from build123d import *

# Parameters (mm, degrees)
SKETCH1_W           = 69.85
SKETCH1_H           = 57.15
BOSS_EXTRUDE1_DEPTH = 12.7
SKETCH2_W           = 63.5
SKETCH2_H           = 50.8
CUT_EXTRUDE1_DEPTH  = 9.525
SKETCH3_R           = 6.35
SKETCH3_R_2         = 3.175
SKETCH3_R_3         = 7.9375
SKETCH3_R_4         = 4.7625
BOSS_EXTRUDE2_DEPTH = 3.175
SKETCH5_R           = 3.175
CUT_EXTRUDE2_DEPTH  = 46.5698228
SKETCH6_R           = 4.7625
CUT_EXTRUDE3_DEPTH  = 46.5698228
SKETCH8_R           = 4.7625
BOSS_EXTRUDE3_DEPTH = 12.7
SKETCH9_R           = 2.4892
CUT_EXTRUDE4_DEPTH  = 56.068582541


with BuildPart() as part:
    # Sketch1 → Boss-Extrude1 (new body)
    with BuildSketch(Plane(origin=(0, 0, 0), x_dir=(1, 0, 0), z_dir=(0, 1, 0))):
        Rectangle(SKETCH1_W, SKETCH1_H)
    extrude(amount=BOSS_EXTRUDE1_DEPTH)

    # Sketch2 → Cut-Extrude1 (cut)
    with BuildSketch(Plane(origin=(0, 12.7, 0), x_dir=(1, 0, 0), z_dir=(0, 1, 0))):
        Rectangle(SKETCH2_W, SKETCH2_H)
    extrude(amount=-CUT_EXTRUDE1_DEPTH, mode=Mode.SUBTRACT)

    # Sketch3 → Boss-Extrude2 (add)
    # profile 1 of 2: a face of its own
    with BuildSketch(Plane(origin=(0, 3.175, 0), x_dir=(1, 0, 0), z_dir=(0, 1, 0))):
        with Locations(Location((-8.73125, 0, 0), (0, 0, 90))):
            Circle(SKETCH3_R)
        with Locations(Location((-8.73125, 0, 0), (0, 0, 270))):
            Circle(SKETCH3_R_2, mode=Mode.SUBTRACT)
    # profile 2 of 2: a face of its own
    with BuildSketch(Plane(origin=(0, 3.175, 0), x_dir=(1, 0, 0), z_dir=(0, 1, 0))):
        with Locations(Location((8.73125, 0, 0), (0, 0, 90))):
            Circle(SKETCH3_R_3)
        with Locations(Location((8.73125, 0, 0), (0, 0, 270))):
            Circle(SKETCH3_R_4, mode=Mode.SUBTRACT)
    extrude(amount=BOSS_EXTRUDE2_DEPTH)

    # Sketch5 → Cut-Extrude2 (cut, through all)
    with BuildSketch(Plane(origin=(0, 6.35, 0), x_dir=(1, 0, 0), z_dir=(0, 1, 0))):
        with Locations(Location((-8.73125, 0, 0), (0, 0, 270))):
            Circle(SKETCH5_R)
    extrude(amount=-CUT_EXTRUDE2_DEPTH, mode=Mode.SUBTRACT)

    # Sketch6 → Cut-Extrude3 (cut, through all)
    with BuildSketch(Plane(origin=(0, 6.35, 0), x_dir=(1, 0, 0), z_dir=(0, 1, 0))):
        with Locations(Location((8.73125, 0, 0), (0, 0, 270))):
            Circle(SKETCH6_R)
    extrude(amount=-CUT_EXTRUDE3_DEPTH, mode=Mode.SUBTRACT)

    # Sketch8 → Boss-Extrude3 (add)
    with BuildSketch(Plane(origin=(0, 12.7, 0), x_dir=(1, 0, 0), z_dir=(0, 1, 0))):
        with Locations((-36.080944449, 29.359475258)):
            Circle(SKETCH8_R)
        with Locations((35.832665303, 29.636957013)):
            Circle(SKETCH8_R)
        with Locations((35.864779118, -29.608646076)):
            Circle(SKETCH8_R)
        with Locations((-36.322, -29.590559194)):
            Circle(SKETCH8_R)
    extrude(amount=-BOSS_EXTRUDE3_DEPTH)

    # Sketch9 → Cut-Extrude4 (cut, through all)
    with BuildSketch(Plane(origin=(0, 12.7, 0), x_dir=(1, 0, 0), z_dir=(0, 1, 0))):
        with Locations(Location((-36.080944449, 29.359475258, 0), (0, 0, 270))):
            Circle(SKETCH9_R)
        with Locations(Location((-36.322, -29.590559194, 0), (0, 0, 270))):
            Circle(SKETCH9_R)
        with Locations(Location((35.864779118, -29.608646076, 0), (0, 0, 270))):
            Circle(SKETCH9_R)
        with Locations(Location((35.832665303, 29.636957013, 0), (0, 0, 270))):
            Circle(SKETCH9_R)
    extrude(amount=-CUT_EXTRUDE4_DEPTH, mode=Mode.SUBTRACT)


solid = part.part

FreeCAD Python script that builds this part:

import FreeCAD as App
import Part
import Sketcher

V = App.Vector
Q = App.Units.Quantity


def add_polygon(sketch, points):
    """Adds a closed chain of lines whose ends are joined by coincident constraints."""
    first, n = sketch.GeometryCount, len(points)
    for a, b in zip(points, points[1:] + points[:1]):
        sketch.addGeometry(Part.LineSegment(App.Vector(*a, 0), App.Vector(*b, 0)), False)
    for i in range(n):
        sketch.addConstraint(Sketcher.Constraint("Coincident", first + i, 2, first + (i + 1) % n, 1))

doc = App.newDocument("Part")
params = doc.addObject("Spreadsheet::Sheet", "Params")
for row, (alias, value) in enumerate([
    ("sketch1_width", "2.75 in"),
    ("sketch1_height", "2.25 in"),
    ("pad1_length", "0.5 in"),
    ("sketch2_height", "2 in"),
    ("sketch2_width", "2.5 in"),
    ("pocket1_length", "0.375 in"),
    ("sketch3_diameter", "0.5 in"),
    ("sketch3_diameter2", "0.25 in"),
    ("sketch3_diameter3", "0.625 in"),
    ("sketch3_diameter4", "0.375 in"),
    ("pad2_length", "0.125 in"),
    ("sketch4_diameter", "0.25 in"),
    ("sketch5_diameter", "0.375 in"),
    ("sketch6_diameter", "0.375 in"),
    ("pad3_length", "0.5 in"),
    ("sketch7_diameter", "0.196 in"),
], start=1):
    params.set(f"A{row}", alias)
    params.set(f"B{row}", "=" + value)
    params.setAlias(f"B{row}", alias)

body = doc.addObject("PartDesign::Body", "Body")

sketch1 = doc.addObject("Sketcher::SketchObject", "Sketch")
body.addObject(sketch1)
sketch1.AttachmentSupport = (doc.XZ_Plane, [""])
sketch1.MapMode = "FlatFace"
add_polygon(sketch1, [(-35, -29), (-35, 29), (35, 29), (35, -29)])
sketch1.addConstraint([
    Sketcher.Constraint("Vertical", 0),
    Sketcher.Constraint("Horizontal", 1),
    Sketcher.Constraint("Vertical", 2),
    Sketcher.Constraint("Horizontal", 3),
    Sketcher.Constraint("Symmetric", 0, 2, 2, 2, -1, 1),
    Sketcher.Constraint("DistanceX", 1, 1, 1, 2, Q("2.75 in")),
    Sketcher.Constraint("DistanceY", 0, 1, 0, 2, Q("2.25 in")),
])
sketch1.setExpression("Constraints[9]", "Params.sketch1_width")
sketch1.setExpression("Constraints[10]", "Params.sketch1_height")
pad1 = doc.addObject("PartDesign::Pad", "Pad")
body.addObject(pad1)
pad1.Profile = sketch1
pad1.setExpression("Length", "Params.pad1_length")
pad1.Reversed = True

sketch2 = doc.addObject("Sketcher::SketchObject", "Sketch001")
body.addObject(sketch2)
sketch2.AttachmentSupport = (doc.XZ_Plane, [""])
sketch2.MapMode = "FlatFace"
sketch2.AttachmentOffset = App.Placement(V(0, 0, -0.5 * 25.4), App.Rotation())
add_polygon(sketch2, [(-32, -25), (-32, 25), (32, 25), (32, -25)])
sketch2.addConstraint([
    Sketcher.Constraint("Vertical", 0),
    Sketcher.Constraint("Horizontal", 1),
    Sketcher.Constraint("Vertical", 2),
    Sketcher.Constraint("Horizontal", 3),
    Sketcher.Constraint("Symmetric", 0, 2, 2, 2, -1, 1),
    Sketcher.Constraint("DistanceY", 0, 1, 0, 2, Q("2 in")),
    Sketcher.Constraint("DistanceX", 1, 1, 1, 2, Q("2.5 in")),
])
sketch2.setExpression("Constraints[9]", "Params.sketch2_height")
sketch2.setExpression("Constraints[10]", "Params.sketch2_width")
pocket1 = doc.addObject("PartDesign::Pocket", "Pocket")
body.addObject(pocket1)
pocket1.Profile = sketch2
pocket1.setExpression("Length", "Params.pocket1_length")
pocket1.Reversed = True

sketch3 = doc.addObject("Sketcher::SketchObject", "Sketch002")
body.addObject(sketch3)
sketch3.AttachmentSupport = (doc.XZ_Plane, [""])
sketch3.MapMode = "FlatFace"
sketch3.AttachmentOffset = App.Placement(V(0, 0, -0.125 * 25.4), App.Rotation())
sketch3.addGeometry([
    Part.Circle(V(-8.7, 0, 0), V(0, 0, 1), 6.3),
    Part.Circle(V(-8.7, 0, 0), V(0, 0, 1), 3.2),
    Part.Circle(V(8.7, 0, 0), V(0, 0, 1), 7.9),
    Part.Circle(V(8.7, 0, 0), V(0, 0, 1), 4.8),
], False)
sketch3.addConstraint([
    Sketcher.Constraint("Coincident", 1, 3, 0, 3),
    Sketcher.Constraint("Coincident", 3, 3, 2, 3),
    Sketcher.Constraint("Symmetric", 0, 3, 2, 3, -1, 1),
    Sketcher.Constraint("PointOnObject", 0, 3, -1),
    Sketcher.Constraint("Diameter", 0, Q("0.5 in")),
    Sketcher.Constraint("Diameter", 1, Q("0.25 in")),
    Sketcher.Constraint("Diameter", 2, Q("0.625 in")),
    Sketcher.Constraint("Diameter", 3, Q("0.375 in")),
    Sketcher.Constraint("DistanceX", 0, 3, -1, 1, Q("0.34375 in")),
])
sketch3.setExpression("Constraints[4]", "Params.sketch3_diameter")
sketch3.setExpression("Constraints[5]", "Params.sketch3_diameter2")
sketch3.setExpression("Constraints[6]", "Params.sketch3_diameter3")
sketch3.setExpression("Constraints[7]", "Params.sketch3_diameter4")
pad2 = doc.addObject("PartDesign::Pad", "Pad001")
body.addObject(pad2)
pad2.Profile = sketch3
pad2.setExpression("Length", "Params.pad2_length")
pad2.Reversed = True

sketch4 = doc.addObject("Sketcher::SketchObject", "Sketch003")
body.addObject(sketch4)
sketch4.AttachmentSupport = (doc.XZ_Plane, [""])
sketch4.MapMode = "FlatFace"
sketch4.AttachmentOffset = App.Placement(V(0, 0, -0.25 * 25.4), App.Rotation())
sketch4.addGeometry(Part.Circle(V(-8.7, 0, 0), V(0, 0, 1), 3.2), False)
sketch4.addConstraint([
    Sketcher.Constraint("PointOnObject", 0, 3, -1),
    Sketcher.Constraint("Diameter", 0, Q("0.25 in")),
    Sketcher.Constraint("DistanceX", 0, 3, -1, 1, Q("0.34375 in")),
])
sketch4.setExpression("Constraints[1]", "Params.sketch4_diameter")
pocket2 = doc.addObject("PartDesign::Pocket", "Pocket001")
body.addObject(pocket2)
pocket2.Profile = sketch4
pocket2.Type = "ThroughAll"
pocket2.Reversed = True

sketch5 = doc.addObject("Sketcher::SketchObject", "Sketch004")
body.addObject(sketch5)
sketch5.AttachmentSupport = (doc.XZ_Plane, [""])
sketch5.MapMode = "FlatFace"
sketch5.AttachmentOffset = App.Placement(V(0, 0, -0.25 * 25.4), App.Rotation())
sketch5.addGeometry(Part.Circle(V(8.7, 0, 0), V(0, 0, 1), 4.8), False)
sketch5.addConstraint([
    Sketcher.Constraint("PointOnObject", 0, 3, -1),
    Sketcher.Constraint("Diameter", 0, Q("0.375 in")),
    Sketcher.Constraint("DistanceX", -1, 1, 0, 3, Q("0.34375 in")),
])
sketch5.setExpression("Constraints[1]", "Params.sketch5_diameter")
pocket3 = doc.addObject("PartDesign::Pocket", "Pocket002")
body.addObject(pocket3)
pocket3.Profile = sketch5
pocket3.Type = "ThroughAll"
pocket3.Reversed = True

sketch6 = doc.addObject("Sketcher::SketchObject", "Sketch005")
body.addObject(sketch6)
sketch6.AttachmentSupport = (doc.XZ_Plane, [""])
sketch6.MapMode = "FlatFace"
sketch6.AttachmentOffset = App.Placement(V(0, 0, -0.5 * 25.4), App.Rotation())
sketch6.addGeometry([
    Part.Circle(V(-36.1, -29.4, 0), V(0, 0, 1), 4.8),
    Part.Circle(V(35.8, -29.6, 0), V(0, 0, 1), 4.8),
    Part.Circle(V(35.9, 29.6, 0), V(0, 0, 1), 4.8),
    Part.Circle(V(-36.3, 29.6, 0), V(0, 0, 1), 4.8),
], False)
sketch6.addConstraint([
    Sketcher.Constraint("Equal", 0, 1),
    Sketcher.Constraint("Equal", 1, 2),
    Sketcher.Constraint("Equal", 2, 3),
    Sketcher.Constraint("Diameter", 0, Q("0.375 in")),
    Sketcher.Constraint("DistanceX", 3, 3, -1, 1, Q("1.43 in")),
    Sketcher.Constraint("DistanceX", -1, 1, 2, 3, 35.864779),
    Sketcher.Constraint("DistanceY", -1, 1, 3, 3, 29.590559),
    Sketcher.Constraint("DistanceX", 0, 3, 1, 3, 71.91361),
    Sketcher.Constraint("DistanceY", 1, 3, 0, 3, 0.277482),
    Sketcher.Constraint("DistanceY", 0, 3, 2, 3, 58.968121),
    Sketcher.Constraint("DistanceX", 0, 3, -1, 1, 36.080944),
    Sketcher.Constraint("DistanceY", 0, 3, -1, 1, 29.359475),
])
sketch6.setExpression("Constraints[3]", "Params.sketch6_diameter")
pad3 = doc.addObject("PartDesign::Pad", "Pad002")
body.addObject(pad3)
pad3.Profile = sketch6
pad3.setExpression("Length", "Params.pad3_length")

sketch7 = doc.addObject("Sketcher::SketchObject", "Sketch006")
body.addObject(sketch7)
sketch7.AttachmentSupport = (doc.XZ_Plane, [""])
sketch7.MapMode = "FlatFace"
sketch7.AttachmentOffset = App.Placement(V(0, 0, -0.5 * 25.4), App.Rotation())
sketch7.addGeometry([
    Part.Circle(V(-36.1, -29.4, 0), V(0, 0, 1), 2.5),
    Part.Circle(V(-36.3, 29.6, 0), V(0, 0, 1), 2.5),
    Part.Circle(V(35.9, 29.6, 0), V(0, 0, 1), 2.5),
    Part.Circle(V(35.8, -29.6, 0), V(0, 0, 1), 2.5),
], False)
sketch7.addConstraint([
    Sketcher.Constraint("Equal", 0, 1),
    Sketcher.Constraint("Equal", 1, 2),
    Sketcher.Constraint("Equal", 2, 3),
    Sketcher.Constraint("Diameter", 0, Q("0.196 in")),
    Sketcher.Constraint("DistanceX", 1, 3, -1, 1, Q("1.43 in")),
    Sketcher.Constraint("DistanceY", -1, 1, 1, 3, 29.590559),
    Sketcher.Constraint("DistanceX", -1, 1, 2, 3, 35.864779),
    Sketcher.Constraint("DistanceY", 0, 3, 2, 3, 58.968121),
    Sketcher.Constraint("DistanceX", 0, 3, 3, 3, 71.91361),
    Sketcher.Constraint("DistanceY", 3, 3, 0, 3, 0.277482),
    Sketcher.Constraint("DistanceX", 0, 3, -1, 1, 36.080944),
    Sketcher.Constraint("DistanceY", 0, 3, -1, 1, 29.359475),
])
sketch7.setExpression("Constraints[3]", "Params.sketch7_diameter")
pocket4 = doc.addObject("PartDesign::Pocket", "Pocket003")
body.addObject(pocket4)
pocket4.Profile = sketch7
pocket4.Type = "ThroughAll"
pocket4.Reversed = True

doc.recompute()
